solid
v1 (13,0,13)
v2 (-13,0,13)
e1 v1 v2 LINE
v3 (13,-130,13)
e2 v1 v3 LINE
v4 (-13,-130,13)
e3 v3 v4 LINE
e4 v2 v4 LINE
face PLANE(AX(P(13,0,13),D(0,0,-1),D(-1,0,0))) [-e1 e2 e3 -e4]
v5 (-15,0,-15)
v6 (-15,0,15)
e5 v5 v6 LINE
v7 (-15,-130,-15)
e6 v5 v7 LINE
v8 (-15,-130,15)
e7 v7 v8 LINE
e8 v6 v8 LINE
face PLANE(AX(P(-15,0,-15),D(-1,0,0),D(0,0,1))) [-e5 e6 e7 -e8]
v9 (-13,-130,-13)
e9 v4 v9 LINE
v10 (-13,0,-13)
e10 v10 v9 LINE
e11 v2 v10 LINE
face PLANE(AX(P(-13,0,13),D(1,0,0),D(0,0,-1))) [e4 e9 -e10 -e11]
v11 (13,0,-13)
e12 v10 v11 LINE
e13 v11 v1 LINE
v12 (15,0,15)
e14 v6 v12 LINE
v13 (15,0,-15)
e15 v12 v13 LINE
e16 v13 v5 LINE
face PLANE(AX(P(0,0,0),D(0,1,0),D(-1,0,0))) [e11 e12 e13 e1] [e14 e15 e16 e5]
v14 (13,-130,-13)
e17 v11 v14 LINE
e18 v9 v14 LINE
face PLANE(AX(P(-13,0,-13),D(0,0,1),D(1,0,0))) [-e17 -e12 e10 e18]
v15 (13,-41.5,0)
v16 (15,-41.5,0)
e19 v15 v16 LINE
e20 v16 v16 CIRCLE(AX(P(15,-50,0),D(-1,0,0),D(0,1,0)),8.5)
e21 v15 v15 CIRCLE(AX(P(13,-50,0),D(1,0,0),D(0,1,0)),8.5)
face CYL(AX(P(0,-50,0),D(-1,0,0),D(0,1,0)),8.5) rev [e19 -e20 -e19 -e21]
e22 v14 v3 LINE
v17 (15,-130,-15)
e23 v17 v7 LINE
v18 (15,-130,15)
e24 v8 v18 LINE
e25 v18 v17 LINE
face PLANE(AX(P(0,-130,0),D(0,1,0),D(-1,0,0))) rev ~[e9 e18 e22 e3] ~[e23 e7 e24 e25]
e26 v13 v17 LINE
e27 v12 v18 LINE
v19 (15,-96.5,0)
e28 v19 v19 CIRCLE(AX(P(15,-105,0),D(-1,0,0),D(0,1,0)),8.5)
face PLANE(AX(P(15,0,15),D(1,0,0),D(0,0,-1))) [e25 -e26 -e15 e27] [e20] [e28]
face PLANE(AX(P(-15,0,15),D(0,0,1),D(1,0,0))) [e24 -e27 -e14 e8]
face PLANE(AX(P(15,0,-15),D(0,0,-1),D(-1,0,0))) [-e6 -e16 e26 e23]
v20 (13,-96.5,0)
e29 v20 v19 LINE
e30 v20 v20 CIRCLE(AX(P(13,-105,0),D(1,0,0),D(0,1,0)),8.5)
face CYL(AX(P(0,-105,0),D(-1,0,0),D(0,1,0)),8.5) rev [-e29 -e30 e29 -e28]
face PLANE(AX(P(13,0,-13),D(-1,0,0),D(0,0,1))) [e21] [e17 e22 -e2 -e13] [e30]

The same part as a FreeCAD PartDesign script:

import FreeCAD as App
import Part
import Sketcher
from FreeCAD import Vector
Q = App.Units.Quantity

doc = App.newDocument("Part")
body = doc.addObject("PartDesign::Body", "Body")

# Sketch on XZ plane
sketch1 = doc.addObject("Sketcher::SketchObject", "Sketch")
body.addObject(sketch1)
sketch1.AttachmentSupport = (doc.XZ_Plane, [""])
sketch1.MapMode = "FlatFace"
sketch1.addGeometry([
    Part.LineSegment(Vector(-15, -15, 0), Vector(-15, 15, 0)),  # 0
    Part.LineSegment(Vector(-15, 15, 0), Vector(15, 15, 0)),  # 1
    Part.LineSegment(Vector(15, 15, 0), Vector(15, -15, 0)),  # 2
    Part.LineSegment(Vector(15, -15, 0), Vector(-15, -15, 0)),  # 3
    Part.LineSegment(Vector(13, -13, 0), Vector(13, 13, 0)),  # 4
    Part.LineSegment(Vector(13, 13, 0), Vector(-13, 13, 0)),  # 5
    Part.LineSegment(Vector(-13, 13, 0), Vector(-13, -13, 0)),  # 6
    Part.LineSegment(Vector(-13, -13, 0), Vector(13, -13, 0)),  # 7
], False)
sketch1.addConstraint([
    Sketcher.Constraint("Coincident", 0, 2, 1, 1),
    Sketcher.Constraint("Coincident", 1, 2, 2, 1),
    Sketcher.Constraint("Coincident", 2, 2, 3, 1),
    Sketcher.Constraint("Coincident", 3, 2, 0, 1),
    Sketcher.Constraint("Coincident", 4, 2, 5, 1),
    Sketcher.Constraint("Coincident", 5, 2, 6, 1),
    Sketcher.Constraint("Coincident", 6, 2, 7, 1),
    Sketcher.Constraint("Coincident", 7, 2, 4, 1),
    Sketcher.Constraint("Vertical", 0),
    Sketcher.Constraint("Horizontal", 1),
    Sketcher.Constraint("Vertical", 2),
    Sketcher.Constraint("Horizontal", 3),
    Sketcher.Constraint("Vertical", 4),
    Sketcher.Constraint("Horizontal", 5),
    Sketcher.Constraint("Vertical", 6),
    Sketcher.Constraint("Horizontal", 7),
    Sketcher.Constraint("Symmetric", 0, 2, 2, 2, -1, 1),
    Sketcher.Constraint("Symmetric", 4, 2, 6, 2, -1, 1),
    Sketcher.Constraint("Equal", 3, 0),
    Sketcher.Constraint("Equal", 7, 4),
    Sketcher.Constraint("DistanceX", 1, 1, 1, 2, Q("30 mm")),
    Sketcher.Constraint("DistanceX", 4, 2, 1, 2, Q("2 mm")),
])
pad1 = doc.addObject("PartDesign::Pad", "Pad")
body.addObject(pad1)
pad1.Profile = sketch1
pad1.Length = 130

# Sketch on YZ plane
sketch2 = doc.addObject("Sketcher::SketchObject", "Sketch001")
body.addObject(sketch2)
sketch2.AttachmentSupport = (doc.YZ_Plane, [""])
sketch2.MapMode = "FlatFace"
sketch2.addGeometry(Part.Circle(Vector(-50, 0, 0), Vector(0, 0, 1), 8.5), False)
sketch2.addConstraint([
    Sketcher.Constraint("PointOnObject", 0, 3, -1),
    Sketcher.Constraint("Diameter", 0, Q("17 mm")),
    Sketcher.Constraint("DistanceX", 0, 3, -1, 1, Q("50 mm")),
])
pocket1 = doc.addObject("PartDesign::Pocket", "Pocket")
body.addObject(pocket1)
pocket1.Profile = sketch2
pocket1.Type = "ThroughAll"
pocket1.Reversed = True
doc.recompute()

linearpattern = doc.addObject("PartDesign::LinearPattern", "LinearPattern")
body.addObject(linearpattern)
linearpattern.Originals = [pocket1]
linearpattern.Direction = (doc.Y_Axis, [""])
linearpattern.Mode = "offset"
linearpattern.Offset = 55
linearpattern.Occurrences = 2
linearpattern.Reversed = True
body.Tip = linearpattern

doc.recompute()
